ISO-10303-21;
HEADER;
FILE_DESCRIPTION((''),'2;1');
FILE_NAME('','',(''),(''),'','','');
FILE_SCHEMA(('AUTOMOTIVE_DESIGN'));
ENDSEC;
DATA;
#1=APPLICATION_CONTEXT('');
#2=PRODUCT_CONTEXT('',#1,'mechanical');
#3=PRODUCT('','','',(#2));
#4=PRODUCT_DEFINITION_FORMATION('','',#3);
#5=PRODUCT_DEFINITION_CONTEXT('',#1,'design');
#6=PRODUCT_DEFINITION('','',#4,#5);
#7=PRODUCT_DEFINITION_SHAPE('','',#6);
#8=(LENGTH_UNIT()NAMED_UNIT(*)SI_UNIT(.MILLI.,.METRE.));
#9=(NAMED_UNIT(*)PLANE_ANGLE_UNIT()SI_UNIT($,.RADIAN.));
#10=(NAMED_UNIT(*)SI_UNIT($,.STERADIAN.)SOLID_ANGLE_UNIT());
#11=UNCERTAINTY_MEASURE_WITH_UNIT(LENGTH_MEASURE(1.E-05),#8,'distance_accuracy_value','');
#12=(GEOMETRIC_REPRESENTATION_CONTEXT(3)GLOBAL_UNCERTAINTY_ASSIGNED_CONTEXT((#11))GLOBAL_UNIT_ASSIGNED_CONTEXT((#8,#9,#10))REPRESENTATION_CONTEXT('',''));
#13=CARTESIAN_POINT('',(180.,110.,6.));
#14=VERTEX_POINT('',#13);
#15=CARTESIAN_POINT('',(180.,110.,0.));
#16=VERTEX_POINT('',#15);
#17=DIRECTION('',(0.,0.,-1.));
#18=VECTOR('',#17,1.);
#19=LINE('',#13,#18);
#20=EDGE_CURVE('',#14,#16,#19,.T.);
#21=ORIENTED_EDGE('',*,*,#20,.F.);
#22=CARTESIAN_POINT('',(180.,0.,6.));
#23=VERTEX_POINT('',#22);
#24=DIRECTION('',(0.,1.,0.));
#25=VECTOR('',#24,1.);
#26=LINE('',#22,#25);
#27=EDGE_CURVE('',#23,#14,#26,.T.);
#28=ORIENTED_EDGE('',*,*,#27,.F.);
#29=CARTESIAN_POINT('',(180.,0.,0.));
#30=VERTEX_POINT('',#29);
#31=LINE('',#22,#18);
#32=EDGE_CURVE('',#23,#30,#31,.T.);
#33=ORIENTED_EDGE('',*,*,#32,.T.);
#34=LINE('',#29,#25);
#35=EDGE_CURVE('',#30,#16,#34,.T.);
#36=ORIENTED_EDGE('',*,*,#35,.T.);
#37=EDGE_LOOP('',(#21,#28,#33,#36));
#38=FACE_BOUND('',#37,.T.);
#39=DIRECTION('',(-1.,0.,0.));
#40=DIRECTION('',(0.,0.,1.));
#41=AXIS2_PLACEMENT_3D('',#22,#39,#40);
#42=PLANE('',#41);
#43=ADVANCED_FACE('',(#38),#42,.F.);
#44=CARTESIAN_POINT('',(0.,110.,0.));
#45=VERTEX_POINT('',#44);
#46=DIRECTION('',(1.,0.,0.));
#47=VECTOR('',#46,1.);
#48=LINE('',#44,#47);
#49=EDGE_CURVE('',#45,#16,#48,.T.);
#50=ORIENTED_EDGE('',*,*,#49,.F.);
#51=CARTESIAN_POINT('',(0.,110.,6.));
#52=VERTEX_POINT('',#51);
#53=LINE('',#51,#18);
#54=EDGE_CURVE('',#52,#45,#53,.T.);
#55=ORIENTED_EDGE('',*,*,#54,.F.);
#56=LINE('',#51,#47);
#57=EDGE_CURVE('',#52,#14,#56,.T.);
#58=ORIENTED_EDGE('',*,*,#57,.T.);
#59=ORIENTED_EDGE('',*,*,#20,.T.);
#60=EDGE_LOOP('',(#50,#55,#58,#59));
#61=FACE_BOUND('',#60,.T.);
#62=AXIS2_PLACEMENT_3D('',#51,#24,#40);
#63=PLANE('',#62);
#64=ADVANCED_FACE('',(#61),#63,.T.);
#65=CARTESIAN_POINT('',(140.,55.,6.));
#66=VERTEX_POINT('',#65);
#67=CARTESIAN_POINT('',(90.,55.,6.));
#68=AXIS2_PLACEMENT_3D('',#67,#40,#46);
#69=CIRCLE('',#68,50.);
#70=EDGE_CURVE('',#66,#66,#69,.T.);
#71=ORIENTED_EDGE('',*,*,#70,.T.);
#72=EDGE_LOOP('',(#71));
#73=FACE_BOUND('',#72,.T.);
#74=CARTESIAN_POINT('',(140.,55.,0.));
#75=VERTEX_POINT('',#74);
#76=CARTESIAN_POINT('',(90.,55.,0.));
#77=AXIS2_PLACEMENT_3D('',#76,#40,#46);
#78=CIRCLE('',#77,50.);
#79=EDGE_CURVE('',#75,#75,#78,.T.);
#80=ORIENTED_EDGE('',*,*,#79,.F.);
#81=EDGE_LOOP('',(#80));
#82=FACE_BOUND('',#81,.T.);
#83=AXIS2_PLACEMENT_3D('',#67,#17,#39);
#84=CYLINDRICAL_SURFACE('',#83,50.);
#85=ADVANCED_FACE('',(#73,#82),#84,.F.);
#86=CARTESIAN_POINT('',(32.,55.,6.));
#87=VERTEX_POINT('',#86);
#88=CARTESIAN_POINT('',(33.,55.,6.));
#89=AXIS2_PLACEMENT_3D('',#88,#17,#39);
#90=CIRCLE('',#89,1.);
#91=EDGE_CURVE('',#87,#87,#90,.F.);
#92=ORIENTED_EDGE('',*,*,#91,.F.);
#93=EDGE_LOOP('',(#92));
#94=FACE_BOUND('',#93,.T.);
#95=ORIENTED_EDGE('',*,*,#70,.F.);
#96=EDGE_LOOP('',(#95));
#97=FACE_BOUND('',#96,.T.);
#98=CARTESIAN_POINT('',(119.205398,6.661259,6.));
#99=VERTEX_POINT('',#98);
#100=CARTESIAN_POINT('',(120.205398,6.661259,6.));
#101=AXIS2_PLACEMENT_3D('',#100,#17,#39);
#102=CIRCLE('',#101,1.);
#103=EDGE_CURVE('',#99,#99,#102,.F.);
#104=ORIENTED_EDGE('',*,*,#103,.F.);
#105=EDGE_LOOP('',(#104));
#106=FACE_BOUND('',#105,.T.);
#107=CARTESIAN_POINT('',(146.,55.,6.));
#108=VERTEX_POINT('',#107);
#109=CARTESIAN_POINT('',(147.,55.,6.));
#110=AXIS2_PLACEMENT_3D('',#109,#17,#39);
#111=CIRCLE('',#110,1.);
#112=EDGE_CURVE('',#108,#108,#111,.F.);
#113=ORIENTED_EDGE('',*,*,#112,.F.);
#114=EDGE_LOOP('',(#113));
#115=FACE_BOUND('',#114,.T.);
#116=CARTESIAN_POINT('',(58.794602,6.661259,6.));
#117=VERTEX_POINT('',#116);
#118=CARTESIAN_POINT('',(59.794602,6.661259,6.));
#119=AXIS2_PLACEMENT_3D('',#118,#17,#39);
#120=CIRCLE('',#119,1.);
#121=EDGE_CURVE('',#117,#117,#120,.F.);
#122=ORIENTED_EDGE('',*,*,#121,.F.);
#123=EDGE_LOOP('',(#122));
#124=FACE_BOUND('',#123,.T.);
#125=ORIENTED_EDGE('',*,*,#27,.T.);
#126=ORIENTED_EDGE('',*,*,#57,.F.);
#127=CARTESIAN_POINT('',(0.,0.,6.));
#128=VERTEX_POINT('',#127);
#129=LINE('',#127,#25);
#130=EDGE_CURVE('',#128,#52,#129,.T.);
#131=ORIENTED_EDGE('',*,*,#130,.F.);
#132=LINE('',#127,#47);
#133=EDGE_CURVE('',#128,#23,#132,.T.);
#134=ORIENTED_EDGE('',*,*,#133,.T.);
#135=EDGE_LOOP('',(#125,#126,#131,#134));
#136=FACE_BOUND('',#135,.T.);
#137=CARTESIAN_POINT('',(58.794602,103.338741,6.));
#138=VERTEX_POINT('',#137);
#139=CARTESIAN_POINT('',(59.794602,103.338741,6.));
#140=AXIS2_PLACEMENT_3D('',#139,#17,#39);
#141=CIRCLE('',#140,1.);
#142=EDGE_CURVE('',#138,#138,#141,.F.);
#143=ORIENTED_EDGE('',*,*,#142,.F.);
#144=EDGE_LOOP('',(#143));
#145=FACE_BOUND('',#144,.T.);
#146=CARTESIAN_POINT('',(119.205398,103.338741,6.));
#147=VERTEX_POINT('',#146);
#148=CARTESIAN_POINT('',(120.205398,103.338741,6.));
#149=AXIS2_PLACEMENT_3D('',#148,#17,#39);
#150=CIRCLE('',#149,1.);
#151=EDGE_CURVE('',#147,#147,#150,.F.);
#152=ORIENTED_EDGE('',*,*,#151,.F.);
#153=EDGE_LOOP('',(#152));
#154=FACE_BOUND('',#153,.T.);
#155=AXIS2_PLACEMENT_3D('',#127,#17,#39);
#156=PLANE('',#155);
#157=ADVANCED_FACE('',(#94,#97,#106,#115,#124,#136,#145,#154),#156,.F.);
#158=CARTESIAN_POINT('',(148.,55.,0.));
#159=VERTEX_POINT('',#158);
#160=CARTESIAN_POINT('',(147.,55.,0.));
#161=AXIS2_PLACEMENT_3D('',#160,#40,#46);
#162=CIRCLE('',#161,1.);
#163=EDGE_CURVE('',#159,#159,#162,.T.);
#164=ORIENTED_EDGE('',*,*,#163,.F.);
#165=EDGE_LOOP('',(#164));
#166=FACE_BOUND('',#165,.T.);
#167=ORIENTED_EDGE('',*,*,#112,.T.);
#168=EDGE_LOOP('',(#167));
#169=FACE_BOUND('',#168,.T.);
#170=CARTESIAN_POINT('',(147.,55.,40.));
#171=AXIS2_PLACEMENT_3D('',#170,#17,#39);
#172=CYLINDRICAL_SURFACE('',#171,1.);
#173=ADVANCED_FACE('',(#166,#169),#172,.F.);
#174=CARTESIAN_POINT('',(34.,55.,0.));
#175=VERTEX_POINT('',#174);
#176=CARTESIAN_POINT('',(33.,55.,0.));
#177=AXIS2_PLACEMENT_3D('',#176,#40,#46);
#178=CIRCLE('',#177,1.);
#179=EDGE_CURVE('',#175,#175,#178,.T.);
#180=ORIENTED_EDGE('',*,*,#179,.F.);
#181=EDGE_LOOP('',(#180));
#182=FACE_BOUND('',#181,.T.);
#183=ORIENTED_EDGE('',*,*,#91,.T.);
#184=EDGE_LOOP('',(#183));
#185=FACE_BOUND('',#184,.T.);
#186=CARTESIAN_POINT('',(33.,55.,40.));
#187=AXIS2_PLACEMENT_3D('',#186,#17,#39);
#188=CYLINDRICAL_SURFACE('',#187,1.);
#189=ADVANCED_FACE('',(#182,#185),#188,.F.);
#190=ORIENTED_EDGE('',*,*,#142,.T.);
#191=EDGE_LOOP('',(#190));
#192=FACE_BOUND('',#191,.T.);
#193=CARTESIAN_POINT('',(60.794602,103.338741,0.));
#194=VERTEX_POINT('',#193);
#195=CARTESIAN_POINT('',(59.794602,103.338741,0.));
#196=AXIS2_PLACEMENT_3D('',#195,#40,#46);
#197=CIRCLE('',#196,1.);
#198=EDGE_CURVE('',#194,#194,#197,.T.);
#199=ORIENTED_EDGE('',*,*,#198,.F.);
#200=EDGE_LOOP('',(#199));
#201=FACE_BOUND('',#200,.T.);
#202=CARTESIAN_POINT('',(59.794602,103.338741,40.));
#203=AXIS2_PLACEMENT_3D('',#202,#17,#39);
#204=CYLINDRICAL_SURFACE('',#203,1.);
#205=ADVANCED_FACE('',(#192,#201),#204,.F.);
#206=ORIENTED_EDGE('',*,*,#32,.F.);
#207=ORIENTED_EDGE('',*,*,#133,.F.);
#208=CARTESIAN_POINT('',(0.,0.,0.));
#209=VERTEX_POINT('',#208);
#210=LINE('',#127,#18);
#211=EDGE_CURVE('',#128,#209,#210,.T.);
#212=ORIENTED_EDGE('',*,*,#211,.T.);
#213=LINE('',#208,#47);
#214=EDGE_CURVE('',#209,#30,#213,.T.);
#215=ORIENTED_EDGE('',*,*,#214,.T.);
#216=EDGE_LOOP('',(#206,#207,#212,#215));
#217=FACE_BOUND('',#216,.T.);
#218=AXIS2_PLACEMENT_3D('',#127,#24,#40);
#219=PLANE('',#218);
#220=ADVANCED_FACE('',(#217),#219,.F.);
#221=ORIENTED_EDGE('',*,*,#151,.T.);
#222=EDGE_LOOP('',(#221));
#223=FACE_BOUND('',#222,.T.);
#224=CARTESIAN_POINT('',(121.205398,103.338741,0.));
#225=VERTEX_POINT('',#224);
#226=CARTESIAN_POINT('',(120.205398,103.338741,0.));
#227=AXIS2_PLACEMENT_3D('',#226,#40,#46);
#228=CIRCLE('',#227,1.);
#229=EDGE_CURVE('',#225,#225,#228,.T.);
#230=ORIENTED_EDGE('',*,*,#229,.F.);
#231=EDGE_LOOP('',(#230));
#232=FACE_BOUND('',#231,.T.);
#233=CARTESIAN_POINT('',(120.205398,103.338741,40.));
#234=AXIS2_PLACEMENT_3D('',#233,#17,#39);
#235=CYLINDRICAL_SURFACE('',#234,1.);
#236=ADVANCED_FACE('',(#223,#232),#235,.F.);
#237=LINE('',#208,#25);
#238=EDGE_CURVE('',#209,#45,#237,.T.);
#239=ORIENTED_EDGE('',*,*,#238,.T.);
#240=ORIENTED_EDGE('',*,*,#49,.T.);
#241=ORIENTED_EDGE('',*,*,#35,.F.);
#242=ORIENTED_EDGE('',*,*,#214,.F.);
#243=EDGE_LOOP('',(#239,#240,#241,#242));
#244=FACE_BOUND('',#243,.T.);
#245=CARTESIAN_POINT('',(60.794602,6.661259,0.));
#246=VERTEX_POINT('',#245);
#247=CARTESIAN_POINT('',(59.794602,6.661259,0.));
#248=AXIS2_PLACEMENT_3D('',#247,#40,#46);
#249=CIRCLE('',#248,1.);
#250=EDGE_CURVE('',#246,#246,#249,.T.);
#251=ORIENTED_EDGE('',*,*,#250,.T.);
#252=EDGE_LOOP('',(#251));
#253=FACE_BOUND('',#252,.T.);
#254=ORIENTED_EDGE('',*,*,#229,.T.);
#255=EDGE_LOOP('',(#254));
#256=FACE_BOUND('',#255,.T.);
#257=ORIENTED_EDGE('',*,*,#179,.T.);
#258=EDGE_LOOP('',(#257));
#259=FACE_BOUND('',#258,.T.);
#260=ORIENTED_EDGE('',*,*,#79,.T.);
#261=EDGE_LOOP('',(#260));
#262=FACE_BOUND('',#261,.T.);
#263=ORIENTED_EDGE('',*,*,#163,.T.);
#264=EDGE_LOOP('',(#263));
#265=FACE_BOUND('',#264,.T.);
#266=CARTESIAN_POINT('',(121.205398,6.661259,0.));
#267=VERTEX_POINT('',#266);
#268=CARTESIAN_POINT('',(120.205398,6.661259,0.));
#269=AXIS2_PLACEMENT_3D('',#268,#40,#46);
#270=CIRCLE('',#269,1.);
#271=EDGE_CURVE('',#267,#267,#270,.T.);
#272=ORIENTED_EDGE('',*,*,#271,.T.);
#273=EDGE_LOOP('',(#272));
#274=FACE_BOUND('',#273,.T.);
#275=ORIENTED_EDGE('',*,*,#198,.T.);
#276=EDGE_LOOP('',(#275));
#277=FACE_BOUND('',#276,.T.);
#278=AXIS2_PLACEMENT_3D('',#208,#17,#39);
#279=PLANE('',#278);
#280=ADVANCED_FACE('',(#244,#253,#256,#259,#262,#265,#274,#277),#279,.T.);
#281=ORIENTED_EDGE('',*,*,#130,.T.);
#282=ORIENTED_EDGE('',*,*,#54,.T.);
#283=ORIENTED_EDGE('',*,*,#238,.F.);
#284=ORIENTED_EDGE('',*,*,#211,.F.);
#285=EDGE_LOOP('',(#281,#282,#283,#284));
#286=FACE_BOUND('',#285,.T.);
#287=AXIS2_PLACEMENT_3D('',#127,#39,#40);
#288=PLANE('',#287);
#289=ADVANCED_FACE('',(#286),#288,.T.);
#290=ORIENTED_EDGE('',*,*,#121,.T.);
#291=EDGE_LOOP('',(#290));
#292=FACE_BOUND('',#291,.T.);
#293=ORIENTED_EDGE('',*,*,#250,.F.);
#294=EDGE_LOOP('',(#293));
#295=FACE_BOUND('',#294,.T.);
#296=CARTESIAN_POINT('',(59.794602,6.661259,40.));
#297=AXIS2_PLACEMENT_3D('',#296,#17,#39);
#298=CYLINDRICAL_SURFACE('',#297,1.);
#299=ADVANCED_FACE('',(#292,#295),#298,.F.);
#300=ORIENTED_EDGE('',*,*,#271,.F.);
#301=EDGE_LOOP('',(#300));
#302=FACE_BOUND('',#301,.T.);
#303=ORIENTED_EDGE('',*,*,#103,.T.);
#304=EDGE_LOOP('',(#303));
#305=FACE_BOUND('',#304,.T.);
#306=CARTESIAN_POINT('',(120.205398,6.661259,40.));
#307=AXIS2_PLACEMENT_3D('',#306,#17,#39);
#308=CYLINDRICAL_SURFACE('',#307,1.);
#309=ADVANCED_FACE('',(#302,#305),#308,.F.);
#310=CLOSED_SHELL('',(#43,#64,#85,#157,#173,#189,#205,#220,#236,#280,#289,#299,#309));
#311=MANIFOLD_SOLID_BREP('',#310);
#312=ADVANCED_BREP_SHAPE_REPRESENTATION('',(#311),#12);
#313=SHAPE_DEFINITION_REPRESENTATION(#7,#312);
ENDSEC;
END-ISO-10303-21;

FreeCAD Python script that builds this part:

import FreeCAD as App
import Part
import Sketcher

V = App.Vector
Q = App.Units.Quantity


def add_polygon(sketch, points):
    """Adds a closed chain of lines whose ends are joined by coincident constraints."""
    first, n = sketch.GeometryCount, len(points)
    for a, b in zip(points, points[1:] + points[:1]):
        sketch.addGeometry(Part.LineSegment(App.Vector(*a, 0), App.Vector(*b, 0)), False)
    for i in range(n):
        sketch.addConstraint(Sketcher.Constraint("Coincident", first + i, 2, first + (i + 1) % n, 1))

doc = App.newDocument("Part")
body = doc.addObject("PartDesign::Body", "Body")

sketch1 = doc.addObject("Sketcher::SketchObject", "Sketch")
body.addObject(sketch1)
sketch1.AttachmentSupport = (doc.XY_Plane, [""])
sketch1.MapMode = "FlatFace"
add_polygon(sketch1, [(0, 110), (0, 0), (180, 0), (180, 110)])
sketch1.addConstraint([
    Sketcher.Constraint("Vertical", 0),
    Sketcher.Constraint("Horizontal", 1),
    Sketcher.Constraint("Vertical", 2),
    Sketcher.Constraint("Horizontal", 3),
    Sketcher.Constraint("Coincident", 0, 2, -1, 1),
    Sketcher.Constraint("DistanceX", 1, 1, 1, 2, Q("180 mm")),
    Sketcher.Constraint("DistanceY", 0, 2, 0, 1, Q("110 mm")),
])
pad1 = doc.addObject("PartDesign::Pad", "Pad")
body.addObject(pad1)
pad1.Profile = sketch1
pad1.Length = 6

sketch2 = doc.addObject("Sketcher::SketchObject", "Sketch001")
body.addObject(sketch2)
sketch2.AttachmentSupport = (doc.XY_Plane, [""])
sketch2.MapMode = "FlatFace"
sketch2.addGeometry(Part.Circle(V(90, 55, 0), V(0, 0, 1), 50), False)
sketch2.addConstraint([
    Sketcher.Constraint("Diameter", 0, Q("100 mm")),
    Sketcher.Constraint("DistanceX", -1, 1, 0, 3, Q("90 mm")),
    Sketcher.Constraint("DistanceY", -1, 1, 0, 3, Q("55 mm")),
])
pocket1 = doc.addObject("PartDesign::Pocket", "Pocket")
body.addObject(pocket1)
pocket1.Profile = sketch2
pocket1.Length = 6
pocket1.Reversed = True

sketch3 = doc.addObject("Sketcher::SketchObject", "Sketch002")
body.addObject(sketch3)
sketch3.AttachmentSupport = (doc.XY_Plane, [""])
sketch3.MapMode = "FlatFace"
sketch3.addGeometry([
    Part.Circle(V(59.794602, 103.338741, 0), V(0, 0, 1), 1),
    Part.Circle(V(120.205398, 103.338741, 0), V(0, 0, 1), 1),
    Part.Circle(V(147, 55, 0), V(0, 0, 1), 1),
    Part.Circle(V(120.205398, 6.661259, 0), V(0, 0, 1), 1),
    Part.Circle(V(59.794602, 6.661259, 0), V(0, 0, 1), 1),
    Part.Circle(V(33, 55, 0), V(0, 0, 1), 1),
], False)
sketch3.addConstraint([
    Sketcher.Constraint("Equal", 0, 1),
    Sketcher.Constraint("Equal", 1, 2),
    Sketcher.Constraint("Equal", 2, 3),
    Sketcher.Constraint("Equal", 3, 4),
    Sketcher.Constraint("Equal", 4, 5),
    Sketcher.Constraint("Horizontal", 0, 3, 1, 3),
    Sketcher.Constraint("Horizontal", 3, 3, 4, 3),
    Sketcher.Constraint("Horizontal", 2, 3, 5, 3),
    Sketcher.Constraint("Vertical", 1, 3, 3, 3),
    Sketcher.Constraint("Vertical", 0, 3, 4, 3),
    Sketcher.Constraint("Diameter", 0, Q("2 mm")),
    Sketcher.Constraint("DistanceX", -1, 1, 2, 3, Q("147 mm")),
    Sketcher.Constraint("DistanceY", -1, 1, 2, 3, Q("55 mm")),
    Sketcher.Constraint("DistanceX", -1, 1, 5, 3, Q("33 mm")),
    Sketcher.Constraint("DistanceX", -1, 1, 0, 3, Q("59.794602 mm")),
    Sketcher.Constraint("DistanceX", -1, 1, 1, 3, Q("120.205398 mm")),
    Sketcher.Constraint("DistanceY", -1, 1, 0, 3, Q("103.338741 mm")),
    Sketcher.Constraint("DistanceY", -1, 1, 3, 3, Q("6.661259 mm")),
])
pocket2 = doc.addObject("PartDesign::Pocket", "Pocket001")
body.addObject(pocket2)
pocket2.Profile = sketch3
pocket2.Length = 40
pocket2.Reversed = True

doc.recompute()
